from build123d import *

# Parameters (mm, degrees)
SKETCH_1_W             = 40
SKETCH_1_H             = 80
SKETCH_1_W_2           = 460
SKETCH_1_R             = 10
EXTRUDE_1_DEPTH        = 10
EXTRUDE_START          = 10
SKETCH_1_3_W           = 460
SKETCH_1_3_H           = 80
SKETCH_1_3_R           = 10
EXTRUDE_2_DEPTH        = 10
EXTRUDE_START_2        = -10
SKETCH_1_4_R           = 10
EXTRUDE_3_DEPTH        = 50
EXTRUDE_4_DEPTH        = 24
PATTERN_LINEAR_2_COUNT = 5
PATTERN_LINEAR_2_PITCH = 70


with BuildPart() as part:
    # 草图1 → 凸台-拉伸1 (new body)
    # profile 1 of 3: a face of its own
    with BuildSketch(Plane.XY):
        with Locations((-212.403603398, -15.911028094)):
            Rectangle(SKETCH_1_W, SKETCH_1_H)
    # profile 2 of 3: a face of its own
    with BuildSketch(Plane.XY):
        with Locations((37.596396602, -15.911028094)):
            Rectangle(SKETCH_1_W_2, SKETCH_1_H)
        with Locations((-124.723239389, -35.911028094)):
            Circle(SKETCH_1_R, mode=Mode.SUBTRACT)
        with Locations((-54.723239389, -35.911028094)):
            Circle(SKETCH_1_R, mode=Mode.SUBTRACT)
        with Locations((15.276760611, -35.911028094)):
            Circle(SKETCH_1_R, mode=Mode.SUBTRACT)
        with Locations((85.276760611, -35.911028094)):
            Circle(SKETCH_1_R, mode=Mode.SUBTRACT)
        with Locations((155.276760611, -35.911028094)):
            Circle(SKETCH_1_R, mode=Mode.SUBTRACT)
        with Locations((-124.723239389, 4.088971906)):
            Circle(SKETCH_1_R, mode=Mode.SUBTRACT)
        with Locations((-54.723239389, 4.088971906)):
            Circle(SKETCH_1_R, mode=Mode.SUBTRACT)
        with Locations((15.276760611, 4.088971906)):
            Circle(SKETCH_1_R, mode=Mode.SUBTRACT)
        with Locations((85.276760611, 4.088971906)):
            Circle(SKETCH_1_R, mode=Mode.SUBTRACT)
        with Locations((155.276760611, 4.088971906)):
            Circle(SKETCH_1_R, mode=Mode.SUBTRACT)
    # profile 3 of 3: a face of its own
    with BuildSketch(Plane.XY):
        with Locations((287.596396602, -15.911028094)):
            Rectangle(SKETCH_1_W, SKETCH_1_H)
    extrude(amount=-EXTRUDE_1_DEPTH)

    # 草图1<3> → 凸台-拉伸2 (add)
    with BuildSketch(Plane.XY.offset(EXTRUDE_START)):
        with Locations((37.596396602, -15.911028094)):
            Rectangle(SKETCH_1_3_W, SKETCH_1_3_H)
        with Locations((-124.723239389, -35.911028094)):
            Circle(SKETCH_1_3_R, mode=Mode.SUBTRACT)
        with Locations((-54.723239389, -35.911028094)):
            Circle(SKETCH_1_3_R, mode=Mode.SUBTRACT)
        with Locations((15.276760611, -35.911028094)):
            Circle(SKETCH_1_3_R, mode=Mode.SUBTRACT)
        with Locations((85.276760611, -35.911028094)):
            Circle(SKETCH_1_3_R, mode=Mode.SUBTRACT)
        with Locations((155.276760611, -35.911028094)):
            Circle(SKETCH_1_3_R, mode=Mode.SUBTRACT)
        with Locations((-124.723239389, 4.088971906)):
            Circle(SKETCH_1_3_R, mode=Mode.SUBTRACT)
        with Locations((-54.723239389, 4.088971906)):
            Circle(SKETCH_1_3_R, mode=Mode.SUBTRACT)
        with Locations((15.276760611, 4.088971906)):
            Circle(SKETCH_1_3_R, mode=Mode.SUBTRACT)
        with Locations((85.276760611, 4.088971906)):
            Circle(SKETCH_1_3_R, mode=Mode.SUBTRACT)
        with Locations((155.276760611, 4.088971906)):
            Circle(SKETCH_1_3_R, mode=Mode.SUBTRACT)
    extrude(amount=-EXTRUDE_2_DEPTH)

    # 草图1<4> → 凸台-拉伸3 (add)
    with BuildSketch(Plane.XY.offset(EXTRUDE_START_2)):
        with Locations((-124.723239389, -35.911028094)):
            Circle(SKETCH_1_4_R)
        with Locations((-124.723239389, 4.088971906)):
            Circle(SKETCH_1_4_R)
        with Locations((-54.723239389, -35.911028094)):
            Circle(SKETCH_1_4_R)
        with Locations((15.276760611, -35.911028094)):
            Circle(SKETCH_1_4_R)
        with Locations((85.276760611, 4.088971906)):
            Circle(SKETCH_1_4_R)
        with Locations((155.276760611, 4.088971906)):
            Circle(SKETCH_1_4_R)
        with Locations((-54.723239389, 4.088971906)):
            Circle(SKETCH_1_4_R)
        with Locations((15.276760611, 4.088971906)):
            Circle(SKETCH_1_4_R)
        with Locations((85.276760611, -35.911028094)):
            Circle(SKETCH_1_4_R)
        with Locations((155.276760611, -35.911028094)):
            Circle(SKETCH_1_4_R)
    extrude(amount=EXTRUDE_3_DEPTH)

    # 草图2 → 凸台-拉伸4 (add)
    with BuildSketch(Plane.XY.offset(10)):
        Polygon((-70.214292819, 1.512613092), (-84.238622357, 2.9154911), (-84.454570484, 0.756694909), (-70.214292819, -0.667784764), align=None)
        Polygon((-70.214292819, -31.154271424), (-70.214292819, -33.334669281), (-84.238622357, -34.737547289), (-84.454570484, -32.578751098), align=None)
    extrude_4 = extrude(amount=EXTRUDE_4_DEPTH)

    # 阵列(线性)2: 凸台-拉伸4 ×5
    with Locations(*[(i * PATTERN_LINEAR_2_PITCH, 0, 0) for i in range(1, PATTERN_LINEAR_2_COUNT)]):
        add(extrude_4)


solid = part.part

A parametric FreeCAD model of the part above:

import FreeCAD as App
import Part
import Sketcher

V = App.Vector
Q = App.Units.Quantity


def add_polygon(sketch, points):
    """Adds a closed chain of lines whose ends are joined by coincident constraints."""
    first, n = sketch.GeometryCount, len(points)
    for a, b in zip(points, points[1:] + points[:1]):
        sketch.addGeometry(Part.LineSegment(App.Vector(*a, 0), App.Vector(*b, 0)), False)
    for i in range(n):
        sketch.addConstraint(Sketcher.Constraint("Coincident", first + i, 2, first + (i + 1) % n, 1))

doc = App.newDocument("Part")
body = doc.addObject("PartDesign::Body", "Body")

# Sketch on XY plane
sketch1 = body.newObject("Sketcher::SketchObject", "Sketch")
sketch1.AttachmentSupport = (doc.getObject("XY_Plane"), [""])
sketch1.MapMode = "FlatFace"
add_polygon(sketch1, [(-232.403603, 24.088972), (-232.403603, -55.911028), (307.596397, -55.911028), (307.596397, 24.088972)])  # lines 0-3
sketch1.addGeometry(Part.Circle(V(155.276761, 4.088972, 0), V(0, 0, 1), 10), False)  # 4
sketch1.addGeometry(Part.Circle(V(-124.723239, -35.911028, 0), V(0, 0, 1), 10), False)  # 5
sketch1.addGeometry(Part.Circle(V(-54.723239, -35.911028, 0), V(0, 0, 1), 10), False)  # 6
sketch1.addGeometry(Part.Circle(V(15.276761, -35.911028, 0), V(0, 0, 1), 10), False)  # 7
sketch1.addGeometry(Part.Circle(V(85.276761, -35.911028, 0), V(0, 0, 1), 10), False)  # 8
sketch1.addGeometry(Part.Circle(V(155.276761, -35.911028, 0), V(0, 0, 1), 10), False)  # 9
sketch1.addGeometry(Part.Circle(V(-124.723239, 4.088972, 0), V(0, 0, 1), 10), False)  # 10
sketch1.addGeometry(Part.Circle(V(-54.723239, 4.088972, 0), V(0, 0, 1), 10), False)  # 11
sketch1.addGeometry(Part.Circle(V(15.276761, 4.088972, 0), V(0, 0, 1), 10), False)  # 12
sketch1.addGeometry(Part.Circle(V(85.276761, 4.088972, 0), V(0, 0, 1), 10), False)  # 13
sketch1.addConstraint([
    Sketcher.Constraint("Vertical", 0),
    Sketcher.Constraint("Horizontal", 1),
    Sketcher.Constraint("Vertical", 2),
    Sketcher.Constraint("Horizontal", 3),
    Sketcher.Constraint("Equal", 4, 5),
    Sketcher.Constraint("Equal", 5, 6),
    Sketcher.Constraint("Equal", 6, 7),
    Sketcher.Constraint("Equal", 7, 8),
    Sketcher.Constraint("Equal", 8, 9),
    Sketcher.Constraint("Equal", 9, 10),
    Sketcher.Constraint("Equal", 10, 11),
    Sketcher.Constraint("Equal", 11, 12),
    Sketcher.Constraint("Equal", 12, 13),
    Sketcher.Constraint("Horizontal", 5, 3, 6, 3),
    Sketcher.Constraint("Horizontal", 6, 3, 7, 3),
    Sketcher.Constraint("Horizontal", 7, 3, 8, 3),
    Sketcher.Constraint("Horizontal", 8, 3, 9, 3),
    Sketcher.Constraint("Horizontal", 4, 3, 10, 3),
    Sketcher.Constraint("Horizontal", 10, 3, 11, 3),
    Sketcher.Constraint("Horizontal", 11, 3, 12, 3),
    Sketcher.Constraint("Horizontal", 12, 3, 13, 3),
    Sketcher.Constraint("Vertical", 4, 3, 9, 3),
    Sketcher.Constraint("Vertical", 5, 3, 10, 3),
    Sketcher.Constraint("Vertical", 6, 3, 11, 3),
    Sketcher.Constraint("Vertical", 7, 3, 12, 3),
    Sketcher.Constraint("Vertical", 8, 3, 13, 3),
    Sketcher.Constraint("Diameter", 4, Q("20 mm")),
    Sketcher.Constraint("DistanceX", 1, 1, 1, 2, Q("540 mm")),
    Sketcher.Constraint("DistanceY", 0, 2, 0, 1, Q("80 mm")),
    Sketcher.Constraint("DistanceX", 5, 3, 4, 3, Q("280 mm")),
    Sketcher.Constraint("DistanceY", 5, 3, 4, 3, Q("40 mm")),
    Sketcher.Constraint("DistanceX", 5, 3, 6, 3, Q("70 mm")),
    Sketcher.Constraint("DistanceX", 6, 3, 7, 3, Q("70 mm")),
    Sketcher.Constraint("DistanceX", 7, 3, 8, 3, Q("70 mm")),
    Sketcher.Constraint("DistanceY", 0, 2, 5, 3, Q("20 mm")),
    Sketcher.Constraint("DistanceX", -1, 1, 4, 3, Q("155.276761 mm")),
    Sketcher.Constraint("DistanceY", -1, 1, 4, 3, Q("4.088972 mm")),
    Sketcher.Constraint("DistanceX", 0, 2, -1, 1, Q("232.403603 mm")),
])
pad1 = body.newObject("PartDesign::Pad", "Pad")
pad1.Profile = sketch1
pad1.Length = 10
pad1.Reversed = True

# Sketch on XY plane
sketch2 = body.newObject("Sketcher::SketchObject", "Sketch001")
sketch2.AttachmentSupport = (doc.getObject("XY_Plane"), [""])
sketch2.MapMode = "FlatFace"
sketch2.AttachmentOffset = App.Placement(V(0, 0, 10), App.Rotation())
add_polygon(sketch2, [(-192.403603, 24.088972), (-192.403603, -55.911028), (267.596397, -55.911028), (267.596397, 24.088972)])  # lines 0-3
sketch2.addGeometry(Part.Circle(V(-124.723239, -35.911028, 0), V(0, 0, 1), 10), False)  # 4
sketch2.addGeometry(Part.Circle(V(-54.723239, -35.911028, 0), V(0, 0, 1), 10), False)  # 5
sketch2.addGeometry(Part.Circle(V(15.276761, -35.911028, 0), V(0, 0, 1), 10), False)  # 6
sketch2.addGeometry(Part.Circle(V(85.276761, -35.911028, 0), V(0, 0, 1), 10), False)  # 7
sketch2.addGeometry(Part.Circle(V(155.276761, -35.911028, 0), V(0, 0, 1), 10), False)  # 8
sketch2.addGeometry(Part.Circle(V(-124.723239, 4.088972, 0), V(0, 0, 1), 10), False)  # 9
sketch2.addGeometry(Part.Circle(V(-54.723239, 4.088972, 0), V(0, 0, 1), 10), False)  # 10
sketch2.addGeometry(Part.Circle(V(15.276761, 4.088972, 0), V(0, 0, 1), 10), False)  # 11
sketch2.addGeometry(Part.Circle(V(85.276761, 4.088972, 0), V(0, 0, 1), 10), False)  # 12
sketch2.addGeometry(Part.Circle(V(155.276761, 4.088972, 0), V(0, 0, 1), 10), False)  # 13
sketch2.addConstraint([
    Sketcher.Constraint("Vertical", 0),
    Sketcher.Constraint("Horizontal", 1),
    Sketcher.Constraint("Vertical", 2),
    Sketcher.Constraint("Horizontal", 3),
    Sketcher.Constraint("Equal", 4, 5),
    Sketcher.Constraint("Equal", 5, 6),
    Sketcher.Constraint("Equal", 6, 7),
    Sketcher.Constraint("Equal", 7, 8),
    Sketcher.Constraint("Equal", 8, 9),
    Sketcher.Constraint("Equal", 9, 10),
    Sketcher.Constraint("Equal", 10, 11),
    Sketcher.Constraint("Equal", 11, 12),
    Sketcher.Constraint("Equal", 12, 13),
    Sketcher.Constraint("Horizontal", 4, 3, 5, 3),
    Sketcher.Constraint("Horizontal", 5, 3, 6, 3),
    Sketcher.Constraint("Horizontal", 6, 3, 7, 3),
    Sketcher.Constraint("Horizontal", 7, 3, 8, 3),
    Sketcher.Constraint("Horizontal", 9, 3, 10, 3),
    Sketcher.Constraint("Horizontal", 10, 3, 11, 3),
    Sketcher.Constraint("Horizontal", 11, 3, 12, 3),
    Sketcher.Constraint("Horizontal", 12, 3, 13, 3),
    Sketcher.Constraint("Vertical", 4, 3, 9, 3),
    Sketcher.Constraint("Vertical", 5, 3, 10, 3),
    Sketcher.Constraint("Vertical", 6, 3, 11, 3),
    Sketcher.Constraint("Vertical", 7, 3, 12, 3),
    Sketcher.Constraint("Vertical", 8, 3, 13, 3),
    Sketcher.Constraint("Diameter", 4, Q("20 mm")),
    Sketcher.Constraint("DistanceX", 1, 1, 1, 2, Q("460 mm")),
    Sketcher.Constraint("DistanceY", 0, 2, 0, 1, Q("80 mm")),
    Sketcher.Constraint("DistanceX", 4, 3, 5, 3, Q("70 mm")),
    Sketcher.Constraint("DistanceX", 5, 3, 6, 3, Q("70 mm")),
    Sketcher.Constraint("DistanceX", 6, 3, 7, 3, Q("70 mm")),
    Sketcher.Constraint("DistanceX", 7, 3, 8, 3, Q("70 mm")),
    Sketcher.Constraint("DistanceY", 4, 3, 9, 3, Q("40 mm")),
    Sketcher.Constraint("DistanceY", 0, 2, 4, 3, Q("20 mm")),
    Sketcher.Constraint("DistanceX", 4, 3, -1, 1, Q("124.723239 mm")),
    Sketcher.Constraint("DistanceY", 4, 3, -1, 1, Q("35.911028 mm")),
    Sketcher.Constraint("DistanceX", 0, 2, -1, 1, Q("192.403603 mm")),
])
pad2 = body.newObject("PartDesign::Pad", "Pad001")
pad2.Profile = sketch2
pad2.Length = 10
pad2.Reversed = True

# Sketch on XY plane
sketch3 = body.newObject("Sketcher::SketchObject", "Sketch002")
sketch3.AttachmentSupport = (doc.getObject("XY_Plane"), [""])
sketch3.MapMode = "FlatFace"
sketch3.AttachmentOffset = App.Placement(V(0, 0, -10), App.Rotation())
sketch3.addGeometry([
    Part.Circle(V(-124.723239, -35.911028, 0), V(0, 0, 1), 10),  # 0
    Part.Circle(V(-124.723239, 4.088972, 0), V(0, 0, 1), 10),  # 1
    Part.Circle(V(-54.723239, -35.911028, 0), V(0, 0, 1), 10),  # 2
    Part.Circle(V(15.276761, -35.911028, 0), V(0, 0, 1), 10),  # 3
    Part.Circle(V(85.276761, 4.088972, 0), V(0, 0, 1), 10),  # 4
    Part.Circle(V(155.276761, 4.088972, 0), V(0, 0, 1), 10),  # 5
    Part.Circle(V(-54.723239, 4.088972, 0), V(0, 0, 1), 10),  # 6
    Part.Circle(V(15.276761, 4.088972, 0), V(0, 0, 1), 10),  # 7
    Part.Circle(V(85.276761, -35.911028, 0), V(0, 0, 1), 10),  # 8
    Part.Circle(V(155.276761, -35.911028, 0), V(0, 0, 1), 10),  # 9
], False)
sketch3.addConstraint([
    Sketcher.Constraint("Equal", 0, 1),
    Sketcher.Constraint("Equal", 1, 2),
    Sketcher.Constraint("Equal", 2, 3),
    Sketcher.Constraint("Equal", 3, 4),
    Sketcher.Constraint("Equal", 4, 5),
    Sketcher.Constraint("Equal", 5, 6),
    Sketcher.Constraint("Equal", 6, 7),
    Sketcher.Constraint("Equal", 7, 8),
    Sketcher.Constraint("Equal", 8, 9),
    Sketcher.Constraint("Horizontal", 0, 3, 2, 3),
    Sketcher.Constraint("Horizontal", 2, 3, 3, 3),
    Sketcher.Constraint("Horizontal", 1, 3, 4, 3),
    Sketcher.Constraint("Horizontal", 4, 3, 5, 3),
    Sketcher.Constraint("Horizontal", 5, 3, 6, 3),
    Sketcher.Constraint("Horizontal", 6, 3, 7, 3),
    Sketcher.Constraint("Horizontal", 3, 3, 8, 3),
    Sketcher.Constraint("Horizontal", 8, 3, 9, 3),
    Sketcher.Constraint("Vertical", 0, 3, 1, 3),
    Sketcher.Constraint("Vertical", 2, 3, 6, 3),
    Sketcher.Constraint("Vertical", 3, 3, 7, 3),
    Sketcher.Constraint("Vertical", 4, 3, 8, 3),
    Sketcher.Constraint("Vertical", 5, 3, 9, 3),
    Sketcher.Constraint("Diameter", 0, Q("20 mm")),
    Sketcher.Constraint("DistanceY", 0, 3, 1, 3, Q("40 mm")),
    Sketcher.Constraint("DistanceX", 0, 3, 2, 3, Q("70 mm")),
    Sketcher.Constraint("DistanceX", 2, 3, 3, 3, Q("70 mm")),
    Sketcher.Constraint("DistanceX", 3, 3, 4, 3, Q("70 mm")),
    Sketcher.Constraint("DistanceX", 4, 3, 5, 3, Q("70 mm")),
    Sketcher.Constraint("DistanceX", 0, 3, -1, 1, Q("124.723239 mm")),
    Sketcher.Constraint("DistanceY", 0, 3, -1, 1, Q("35.911028 mm")),
])
pad3 = body.newObject("PartDesign::Pad", "Pad002")
pad3.Profile = sketch3
pad3.Length = 50

# Sketch on XY plane
sketch4 = body.newObject("Sketcher::SketchObject", "Sketch003")
sketch4.AttachmentSupport = (doc.getObject("XY_Plane"), [""])
sketch4.MapMode = "FlatFace"
sketch4.AttachmentOffset = App.Placement(V(0, 0, 10), App.Rotation())
add_polygon(sketch4, [(-70.214293, 1.512613), (-84.238622, 2.915491), (-84.45457, 0.756695), (-70.214293, -0.667785)])  # lines 0-3
add_polygon(sketch4, [(-70.214293, -33.334669), (-70.214293, -31.154271), (-84.45457, -32.578751), (-84.238622, -34.737547)])  # lines 4-7
sketch4.addConstraint([
    Sketcher.Constraint("Vertical", 3),
    Sketcher.Constraint("Vertical", 4),
    Sketcher.Constraint("Perpendicular", 0, 1),
    Sketcher.Constraint("Perpendicular", 1, 2),
    Sketcher.Constraint("Perpendicular", 5, 6),
    Sketcher.Constraint("Perpendicular", 6, 7),
    Sketcher.Constraint("Vertical", 3, 2, 4, 2),
    Sketcher.Constraint("Vertical", 1, 2, 5, 2),
    Sketcher.Constraint("Vertical", 0, 2, 6, 2),
    Sketcher.Constraint("Equal", 3, 4),
    Sketcher.Constraint("Distance", 0, Q("14.094321 mm")),
    Sketcher.Constraint("Distance", 1, Q("2.16957 mm")),
    Sketcher.Constraint("DistanceY", 3, 1, 3, 2, Q("2.180398 mm")),
    Sketcher.Constraint("DistanceY", -1, 1, 0, 2, Q("2.915491 mm")),
    Sketcher.Constraint("DistanceX", 1, 2, -1, 1, Q("84.45457 mm")),
    Sketcher.Constraint("DistanceY", 4, 2, -1, 1, Q("31.154271 mm")),
])
pad4 = body.newObject("PartDesign::Pad", "Pad003")
pad4.Profile = sketch4
pad4.Length = 24
doc.recompute()

linearpattern = body.newObject("PartDesign::LinearPattern", "LinearPattern")
linearpattern.Originals = [pad4]
linearpattern.Direction = (doc.getObject("X_Axis"), [""])
linearpattern.Mode = "offset"
linearpattern.Offset = 70
linearpattern.Occurrences = 5
body.Tip = linearpattern

doc.recompute()
